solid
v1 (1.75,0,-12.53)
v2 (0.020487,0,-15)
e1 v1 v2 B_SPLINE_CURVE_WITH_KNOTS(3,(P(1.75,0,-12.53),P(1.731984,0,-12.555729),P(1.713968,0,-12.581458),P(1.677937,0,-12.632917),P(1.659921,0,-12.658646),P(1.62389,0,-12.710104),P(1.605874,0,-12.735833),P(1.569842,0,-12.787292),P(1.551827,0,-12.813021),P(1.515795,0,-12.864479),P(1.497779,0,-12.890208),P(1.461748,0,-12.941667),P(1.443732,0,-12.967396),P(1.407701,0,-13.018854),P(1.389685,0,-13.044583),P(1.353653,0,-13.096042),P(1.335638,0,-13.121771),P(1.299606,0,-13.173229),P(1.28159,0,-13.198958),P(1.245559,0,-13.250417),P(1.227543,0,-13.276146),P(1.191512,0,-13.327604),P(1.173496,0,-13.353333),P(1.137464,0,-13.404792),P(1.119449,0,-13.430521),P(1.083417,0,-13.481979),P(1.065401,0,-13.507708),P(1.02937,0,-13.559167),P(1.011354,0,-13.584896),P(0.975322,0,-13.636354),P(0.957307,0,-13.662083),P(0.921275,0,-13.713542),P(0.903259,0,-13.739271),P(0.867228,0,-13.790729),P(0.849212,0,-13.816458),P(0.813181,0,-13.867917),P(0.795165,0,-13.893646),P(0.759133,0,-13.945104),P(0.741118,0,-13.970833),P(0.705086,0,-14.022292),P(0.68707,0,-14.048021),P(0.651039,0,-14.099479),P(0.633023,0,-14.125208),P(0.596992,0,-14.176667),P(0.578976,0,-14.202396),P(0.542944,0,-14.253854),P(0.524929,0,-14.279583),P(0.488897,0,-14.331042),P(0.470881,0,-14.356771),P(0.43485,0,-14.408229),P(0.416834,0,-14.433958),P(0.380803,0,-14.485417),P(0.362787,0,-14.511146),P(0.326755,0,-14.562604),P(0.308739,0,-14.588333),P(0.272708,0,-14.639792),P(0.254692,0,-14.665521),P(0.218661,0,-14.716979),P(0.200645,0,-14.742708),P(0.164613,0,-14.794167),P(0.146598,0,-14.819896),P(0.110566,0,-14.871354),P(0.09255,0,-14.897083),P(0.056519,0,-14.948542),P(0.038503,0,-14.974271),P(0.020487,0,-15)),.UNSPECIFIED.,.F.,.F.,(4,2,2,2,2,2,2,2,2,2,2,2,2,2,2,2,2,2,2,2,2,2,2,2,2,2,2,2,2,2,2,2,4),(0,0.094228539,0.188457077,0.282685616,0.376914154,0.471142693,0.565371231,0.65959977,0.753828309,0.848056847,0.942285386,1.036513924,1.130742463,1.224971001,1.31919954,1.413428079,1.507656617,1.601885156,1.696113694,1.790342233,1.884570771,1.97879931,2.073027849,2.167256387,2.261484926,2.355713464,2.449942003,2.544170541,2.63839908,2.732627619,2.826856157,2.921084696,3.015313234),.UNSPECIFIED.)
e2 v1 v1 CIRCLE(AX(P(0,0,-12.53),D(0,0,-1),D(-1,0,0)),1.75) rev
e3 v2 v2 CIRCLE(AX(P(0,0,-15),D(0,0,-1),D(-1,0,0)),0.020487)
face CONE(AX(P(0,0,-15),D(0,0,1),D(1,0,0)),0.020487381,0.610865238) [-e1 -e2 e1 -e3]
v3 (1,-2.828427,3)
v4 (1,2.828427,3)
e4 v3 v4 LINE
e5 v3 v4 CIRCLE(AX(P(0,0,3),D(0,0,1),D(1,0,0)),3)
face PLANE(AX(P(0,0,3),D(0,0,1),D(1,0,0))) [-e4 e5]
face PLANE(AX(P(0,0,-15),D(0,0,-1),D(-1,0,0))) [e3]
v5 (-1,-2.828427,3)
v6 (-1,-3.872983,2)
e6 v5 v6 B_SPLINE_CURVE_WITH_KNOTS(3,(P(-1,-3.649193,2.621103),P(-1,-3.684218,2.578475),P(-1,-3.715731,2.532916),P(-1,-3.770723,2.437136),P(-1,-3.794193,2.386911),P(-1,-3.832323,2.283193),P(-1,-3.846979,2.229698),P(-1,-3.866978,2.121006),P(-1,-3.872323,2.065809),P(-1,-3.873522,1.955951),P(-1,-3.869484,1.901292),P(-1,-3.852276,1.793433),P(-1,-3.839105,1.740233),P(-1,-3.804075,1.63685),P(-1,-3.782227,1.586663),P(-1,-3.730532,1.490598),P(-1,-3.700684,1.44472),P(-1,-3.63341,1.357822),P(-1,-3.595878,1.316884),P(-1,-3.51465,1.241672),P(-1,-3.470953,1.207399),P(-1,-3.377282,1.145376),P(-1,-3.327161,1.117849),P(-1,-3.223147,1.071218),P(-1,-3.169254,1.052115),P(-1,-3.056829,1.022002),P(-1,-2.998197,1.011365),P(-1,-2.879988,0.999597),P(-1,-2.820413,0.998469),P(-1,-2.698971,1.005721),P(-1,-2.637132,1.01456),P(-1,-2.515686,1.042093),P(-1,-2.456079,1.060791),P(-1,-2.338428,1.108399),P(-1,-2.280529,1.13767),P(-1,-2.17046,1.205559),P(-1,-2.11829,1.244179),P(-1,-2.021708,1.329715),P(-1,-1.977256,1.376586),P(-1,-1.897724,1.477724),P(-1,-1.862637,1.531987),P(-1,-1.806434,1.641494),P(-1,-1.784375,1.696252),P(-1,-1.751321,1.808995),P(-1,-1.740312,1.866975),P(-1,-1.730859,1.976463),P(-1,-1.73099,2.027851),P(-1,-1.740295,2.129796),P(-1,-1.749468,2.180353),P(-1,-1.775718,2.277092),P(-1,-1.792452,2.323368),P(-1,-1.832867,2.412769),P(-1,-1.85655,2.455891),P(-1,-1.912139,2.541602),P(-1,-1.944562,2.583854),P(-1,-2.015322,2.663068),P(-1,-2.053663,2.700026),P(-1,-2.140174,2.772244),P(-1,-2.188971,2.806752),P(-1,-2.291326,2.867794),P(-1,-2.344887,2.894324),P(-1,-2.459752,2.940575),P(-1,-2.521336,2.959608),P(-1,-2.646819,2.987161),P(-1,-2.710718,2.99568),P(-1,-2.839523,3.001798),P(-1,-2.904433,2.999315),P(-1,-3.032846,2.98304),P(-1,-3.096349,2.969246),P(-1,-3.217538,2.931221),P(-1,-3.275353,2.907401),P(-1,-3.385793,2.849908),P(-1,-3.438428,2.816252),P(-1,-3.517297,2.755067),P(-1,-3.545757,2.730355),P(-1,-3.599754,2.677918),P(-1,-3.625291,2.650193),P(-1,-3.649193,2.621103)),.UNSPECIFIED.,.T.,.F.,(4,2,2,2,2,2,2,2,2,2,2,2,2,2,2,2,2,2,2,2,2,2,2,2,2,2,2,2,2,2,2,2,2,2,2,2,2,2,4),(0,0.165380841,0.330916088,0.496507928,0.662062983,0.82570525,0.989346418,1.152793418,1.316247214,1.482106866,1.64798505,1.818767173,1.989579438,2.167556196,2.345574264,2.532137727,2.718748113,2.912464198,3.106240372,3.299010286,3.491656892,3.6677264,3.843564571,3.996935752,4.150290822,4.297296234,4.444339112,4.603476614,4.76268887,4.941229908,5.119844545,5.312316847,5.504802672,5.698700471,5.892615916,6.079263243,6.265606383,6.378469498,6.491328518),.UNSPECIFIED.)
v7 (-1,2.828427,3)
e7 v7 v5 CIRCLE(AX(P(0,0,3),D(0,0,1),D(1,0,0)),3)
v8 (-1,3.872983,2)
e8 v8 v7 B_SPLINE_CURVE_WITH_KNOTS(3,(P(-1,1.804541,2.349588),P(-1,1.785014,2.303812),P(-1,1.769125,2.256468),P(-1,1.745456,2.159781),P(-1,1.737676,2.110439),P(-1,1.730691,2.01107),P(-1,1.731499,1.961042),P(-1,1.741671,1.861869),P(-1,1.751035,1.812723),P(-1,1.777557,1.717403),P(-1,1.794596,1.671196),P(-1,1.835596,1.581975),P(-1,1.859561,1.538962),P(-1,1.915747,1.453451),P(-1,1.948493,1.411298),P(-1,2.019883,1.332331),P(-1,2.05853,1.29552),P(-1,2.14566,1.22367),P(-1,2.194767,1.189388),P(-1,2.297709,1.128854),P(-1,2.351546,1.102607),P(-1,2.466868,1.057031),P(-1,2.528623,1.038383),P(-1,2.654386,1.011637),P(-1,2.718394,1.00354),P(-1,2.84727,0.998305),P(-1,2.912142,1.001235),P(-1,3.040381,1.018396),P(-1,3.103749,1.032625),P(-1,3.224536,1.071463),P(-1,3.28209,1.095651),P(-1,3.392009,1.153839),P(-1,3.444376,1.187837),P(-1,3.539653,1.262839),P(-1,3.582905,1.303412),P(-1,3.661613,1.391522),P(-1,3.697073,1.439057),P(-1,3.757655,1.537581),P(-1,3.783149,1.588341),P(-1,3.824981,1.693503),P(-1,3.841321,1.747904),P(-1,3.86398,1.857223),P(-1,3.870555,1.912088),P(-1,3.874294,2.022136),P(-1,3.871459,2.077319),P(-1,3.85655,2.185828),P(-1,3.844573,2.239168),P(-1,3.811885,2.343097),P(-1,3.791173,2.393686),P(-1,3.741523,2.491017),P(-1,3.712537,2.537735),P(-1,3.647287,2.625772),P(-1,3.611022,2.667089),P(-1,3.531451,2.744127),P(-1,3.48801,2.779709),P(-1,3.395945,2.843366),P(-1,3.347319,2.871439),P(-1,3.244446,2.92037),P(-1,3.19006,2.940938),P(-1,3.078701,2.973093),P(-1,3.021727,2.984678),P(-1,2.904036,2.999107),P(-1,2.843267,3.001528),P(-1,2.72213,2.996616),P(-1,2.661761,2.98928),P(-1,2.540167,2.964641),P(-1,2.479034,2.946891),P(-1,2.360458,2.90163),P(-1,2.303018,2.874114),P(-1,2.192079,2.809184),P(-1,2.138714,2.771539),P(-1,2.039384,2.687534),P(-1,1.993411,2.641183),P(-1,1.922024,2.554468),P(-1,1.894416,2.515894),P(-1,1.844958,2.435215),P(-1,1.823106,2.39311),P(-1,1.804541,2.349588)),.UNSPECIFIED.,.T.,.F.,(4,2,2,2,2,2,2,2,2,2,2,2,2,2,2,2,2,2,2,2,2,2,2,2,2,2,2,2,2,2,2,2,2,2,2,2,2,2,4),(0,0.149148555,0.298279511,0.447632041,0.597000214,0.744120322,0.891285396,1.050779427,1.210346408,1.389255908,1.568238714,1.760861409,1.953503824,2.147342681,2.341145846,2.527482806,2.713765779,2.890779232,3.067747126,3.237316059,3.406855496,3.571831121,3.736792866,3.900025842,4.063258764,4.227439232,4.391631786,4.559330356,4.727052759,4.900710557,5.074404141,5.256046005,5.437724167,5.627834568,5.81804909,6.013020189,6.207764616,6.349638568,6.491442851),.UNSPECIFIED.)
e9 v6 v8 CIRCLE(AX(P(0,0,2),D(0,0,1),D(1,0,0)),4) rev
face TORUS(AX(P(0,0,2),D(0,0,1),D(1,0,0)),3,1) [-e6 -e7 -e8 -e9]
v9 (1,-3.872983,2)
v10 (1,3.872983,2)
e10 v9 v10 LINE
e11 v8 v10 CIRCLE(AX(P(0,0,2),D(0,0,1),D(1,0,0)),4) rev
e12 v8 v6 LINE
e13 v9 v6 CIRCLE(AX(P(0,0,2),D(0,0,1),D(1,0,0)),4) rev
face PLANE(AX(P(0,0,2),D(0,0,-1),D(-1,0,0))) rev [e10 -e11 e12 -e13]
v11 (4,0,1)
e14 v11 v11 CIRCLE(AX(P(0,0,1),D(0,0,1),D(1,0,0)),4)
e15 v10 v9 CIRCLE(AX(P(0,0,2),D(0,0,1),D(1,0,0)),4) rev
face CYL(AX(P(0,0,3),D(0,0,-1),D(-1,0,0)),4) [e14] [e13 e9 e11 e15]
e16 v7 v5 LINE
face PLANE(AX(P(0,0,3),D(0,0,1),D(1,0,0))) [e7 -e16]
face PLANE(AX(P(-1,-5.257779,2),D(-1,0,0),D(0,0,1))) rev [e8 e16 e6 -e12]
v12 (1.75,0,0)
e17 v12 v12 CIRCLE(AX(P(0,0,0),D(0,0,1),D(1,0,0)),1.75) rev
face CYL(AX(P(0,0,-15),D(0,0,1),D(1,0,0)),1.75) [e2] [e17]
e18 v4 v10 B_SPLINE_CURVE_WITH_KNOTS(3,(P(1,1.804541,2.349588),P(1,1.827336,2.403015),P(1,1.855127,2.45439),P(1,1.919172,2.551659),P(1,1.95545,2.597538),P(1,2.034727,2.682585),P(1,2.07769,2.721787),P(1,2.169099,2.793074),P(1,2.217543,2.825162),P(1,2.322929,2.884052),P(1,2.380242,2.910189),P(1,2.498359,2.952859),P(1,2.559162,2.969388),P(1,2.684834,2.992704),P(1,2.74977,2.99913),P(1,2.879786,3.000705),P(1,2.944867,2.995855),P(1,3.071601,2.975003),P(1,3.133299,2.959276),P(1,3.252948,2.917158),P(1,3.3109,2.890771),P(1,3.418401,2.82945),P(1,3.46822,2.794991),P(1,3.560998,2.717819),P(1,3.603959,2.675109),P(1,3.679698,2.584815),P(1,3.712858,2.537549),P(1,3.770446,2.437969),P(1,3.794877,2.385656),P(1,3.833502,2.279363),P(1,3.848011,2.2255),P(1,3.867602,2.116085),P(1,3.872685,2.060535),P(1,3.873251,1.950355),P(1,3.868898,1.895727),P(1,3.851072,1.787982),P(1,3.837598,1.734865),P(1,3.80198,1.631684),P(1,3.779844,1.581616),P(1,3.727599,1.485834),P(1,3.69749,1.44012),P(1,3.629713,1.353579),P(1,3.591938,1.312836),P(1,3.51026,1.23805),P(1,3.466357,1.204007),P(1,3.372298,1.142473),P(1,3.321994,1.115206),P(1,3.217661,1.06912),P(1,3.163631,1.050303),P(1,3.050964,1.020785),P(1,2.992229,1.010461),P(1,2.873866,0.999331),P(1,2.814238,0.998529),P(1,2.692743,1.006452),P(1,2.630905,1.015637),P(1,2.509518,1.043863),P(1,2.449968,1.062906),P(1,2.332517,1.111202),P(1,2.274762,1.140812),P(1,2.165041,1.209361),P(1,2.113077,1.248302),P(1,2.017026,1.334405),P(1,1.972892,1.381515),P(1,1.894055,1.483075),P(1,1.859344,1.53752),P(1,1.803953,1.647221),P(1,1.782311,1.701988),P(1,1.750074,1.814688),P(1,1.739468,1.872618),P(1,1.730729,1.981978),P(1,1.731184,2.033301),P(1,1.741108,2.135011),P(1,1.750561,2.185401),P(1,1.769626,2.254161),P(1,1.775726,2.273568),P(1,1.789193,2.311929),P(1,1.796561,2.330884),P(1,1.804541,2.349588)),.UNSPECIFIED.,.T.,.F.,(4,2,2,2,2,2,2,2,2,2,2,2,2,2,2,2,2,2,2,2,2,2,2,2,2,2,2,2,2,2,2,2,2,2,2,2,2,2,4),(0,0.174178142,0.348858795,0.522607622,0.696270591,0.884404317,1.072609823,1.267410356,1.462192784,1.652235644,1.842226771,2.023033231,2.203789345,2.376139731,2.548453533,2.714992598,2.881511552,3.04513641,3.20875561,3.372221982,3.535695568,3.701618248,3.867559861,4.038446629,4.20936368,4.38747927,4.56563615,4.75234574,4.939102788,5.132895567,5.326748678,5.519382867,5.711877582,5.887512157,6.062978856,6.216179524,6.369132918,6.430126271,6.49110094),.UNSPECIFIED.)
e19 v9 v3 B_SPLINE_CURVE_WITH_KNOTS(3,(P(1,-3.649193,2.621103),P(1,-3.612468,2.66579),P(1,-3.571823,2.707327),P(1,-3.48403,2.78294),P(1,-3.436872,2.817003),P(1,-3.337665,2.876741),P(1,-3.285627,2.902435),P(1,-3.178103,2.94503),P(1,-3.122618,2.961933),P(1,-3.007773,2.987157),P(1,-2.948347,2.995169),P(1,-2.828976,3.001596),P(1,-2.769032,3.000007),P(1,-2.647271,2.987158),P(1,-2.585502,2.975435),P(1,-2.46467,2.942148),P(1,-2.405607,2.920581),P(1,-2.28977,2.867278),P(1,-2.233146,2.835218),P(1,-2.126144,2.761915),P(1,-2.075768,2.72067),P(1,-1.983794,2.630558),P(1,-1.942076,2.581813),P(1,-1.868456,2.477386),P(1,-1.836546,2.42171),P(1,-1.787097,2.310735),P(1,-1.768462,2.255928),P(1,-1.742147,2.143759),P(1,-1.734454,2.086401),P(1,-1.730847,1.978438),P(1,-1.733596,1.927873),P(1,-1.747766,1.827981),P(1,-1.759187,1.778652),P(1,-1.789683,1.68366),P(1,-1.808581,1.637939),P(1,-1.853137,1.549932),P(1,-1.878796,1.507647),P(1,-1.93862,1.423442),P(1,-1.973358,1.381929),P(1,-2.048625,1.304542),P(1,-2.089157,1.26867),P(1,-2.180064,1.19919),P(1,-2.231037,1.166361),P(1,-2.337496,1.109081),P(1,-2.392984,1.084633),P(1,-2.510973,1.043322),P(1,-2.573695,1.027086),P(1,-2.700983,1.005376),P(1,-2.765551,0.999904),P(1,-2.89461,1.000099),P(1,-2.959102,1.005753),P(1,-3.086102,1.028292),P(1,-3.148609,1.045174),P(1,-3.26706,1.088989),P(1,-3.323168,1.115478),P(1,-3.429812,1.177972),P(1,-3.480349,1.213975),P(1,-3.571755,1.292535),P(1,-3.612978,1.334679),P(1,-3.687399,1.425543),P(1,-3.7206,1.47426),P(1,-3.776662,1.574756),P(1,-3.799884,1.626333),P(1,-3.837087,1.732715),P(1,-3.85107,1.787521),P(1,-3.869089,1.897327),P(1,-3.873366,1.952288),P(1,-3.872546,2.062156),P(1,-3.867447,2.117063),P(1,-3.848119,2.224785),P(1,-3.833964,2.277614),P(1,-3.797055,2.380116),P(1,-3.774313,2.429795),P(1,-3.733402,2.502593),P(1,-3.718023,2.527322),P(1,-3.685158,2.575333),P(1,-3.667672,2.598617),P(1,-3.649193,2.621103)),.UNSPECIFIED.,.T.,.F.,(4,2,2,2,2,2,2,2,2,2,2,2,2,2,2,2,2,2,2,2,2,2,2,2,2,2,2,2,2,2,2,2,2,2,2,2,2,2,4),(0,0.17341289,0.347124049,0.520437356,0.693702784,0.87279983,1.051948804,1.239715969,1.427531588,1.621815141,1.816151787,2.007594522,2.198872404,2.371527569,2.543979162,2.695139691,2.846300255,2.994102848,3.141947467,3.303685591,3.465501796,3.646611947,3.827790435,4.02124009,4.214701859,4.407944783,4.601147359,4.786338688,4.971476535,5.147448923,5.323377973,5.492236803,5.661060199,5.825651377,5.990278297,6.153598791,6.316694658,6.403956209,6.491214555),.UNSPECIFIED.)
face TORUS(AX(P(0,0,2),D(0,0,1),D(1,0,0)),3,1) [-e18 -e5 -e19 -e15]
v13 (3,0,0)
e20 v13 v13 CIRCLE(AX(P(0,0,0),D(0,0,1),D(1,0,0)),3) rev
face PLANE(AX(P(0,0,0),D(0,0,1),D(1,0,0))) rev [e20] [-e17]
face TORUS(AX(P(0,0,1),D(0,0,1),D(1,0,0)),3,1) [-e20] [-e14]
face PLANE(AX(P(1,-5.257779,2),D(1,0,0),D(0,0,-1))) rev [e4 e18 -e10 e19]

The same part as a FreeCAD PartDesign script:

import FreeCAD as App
import Part
import Sketcher
Q = App.Units.Quantity


def edges_at(feature, points):
    """Names of the edges that pass closest to the given points."""
    edges = feature.Shape.Edges
    near = lambda p: min(range(len(edges)), key=lambda i: edges[i].distToShape(Part.Vertex(*p))[0])
    return sorted({f"Edge{near(p) + 1}" for p in points})

doc = App.newDocument("Part")
body = doc.addObject("PartDesign::Body", "Body")

# Sketch on XY plane
sketch1 = body.newObject("Sketcher::SketchObject", "Sketch")
sketch1.AttachmentSupport = (doc.getObject("XY_Plane"), [""])
sketch1.MapMode = "FlatFace"
sketch1.addGeometry(Part.Circle(App.Vector(0, 0, 0), App.Vector(0, 0, 1), 4), False)
sketch1.addConstraint(Sketcher.Constraint("Coincident", 0, 3, -1, 1))
sketch1.addConstraint(Sketcher.Constraint("Diameter", 0, Q("8 mm")))
pad1 = body.newObject("PartDesign::Pad", "Pad")
pad1.Profile = sketch1
pad1.Length = 3
doc.recompute()

fillet = body.newObject("PartDesign::Fillet", "Fillet")
fillet.Base = (pad1, edges_at(pad1, [(-4, 0, 0), (-4, 0, 3)]))
fillet.Radius = 1

# Sketch on XY plane
sketch2 = body.newObject("Sketcher::SketchObject", "Sketch001")
sketch2.AttachmentSupport = (doc.getObject("XY_Plane"), [""])
sketch2.MapMode = "FlatFace"
sketch2.AttachmentOffset = App.Placement(App.Vector(0, 0, 3), App.Rotation())
sketch2.addGeometry(Part.LineSegment(App.Vector(-1, 5.257779, 0), App.Vector(-1, -5.257779, 0)), False)
sketch2.addGeometry(Part.LineSegment(App.Vector(-1, -5.257779, 0), App.Vector(1, -5.257779, 0)), False)
sketch2.addGeometry(Part.LineSegment(App.Vector(1, -5.257779, 0), App.Vector(1, 5.257779, 0)), False)
sketch2.addGeometry(Part.LineSegment(App.Vector(1, 5.257779, 0), App.Vector(-1, 5.257779, 0)), False)
sketch2.addConstraint(Sketcher.Constraint("Coincident", 0, 2, 1, 1))
sketch2.addConstraint(Sketcher.Constraint("Coincident", 1, 2, 2, 1))
sketch2.addConstraint(Sketcher.Constraint("Coincident", 2, 2, 3, 1))
sketch2.addConstraint(Sketcher.Constraint("Coincident", 3, 2, 0, 1))
sketch2.addConstraint(Sketcher.Constraint("Vertical", 0))
sketch2.addConstraint(Sketcher.Constraint("Horizontal", 1))
sketch2.addConstraint(Sketcher.Constraint("Vertical", 2))
sketch2.addConstraint(Sketcher.Constraint("Horizontal", 3))
sketch2.addConstraint(Sketcher.Constraint("Symmetric", 0, 2, 2, 2, -1, 1))
sketch2.addConstraint(Sketcher.Constraint("DistanceX", 1, 1, 1, 2, Q("2 mm")))
sketch2.addConstraint(Sketcher.Constraint("DistanceY", 0, 2, 0, 1, Q("10.515557 mm")))
pocket1 = body.newObject("PartDesign::Pocket", "Pocket")
pocket1.Profile = sketch2
pocket1.Length = 1

# Sketch on XY plane
sketch3 = body.newObject("Sketcher::SketchObject", "Sketch002")
sketch3.AttachmentSupport = (doc.getObject("XY_Plane"), [""])
sketch3.MapMode = "FlatFace"
sketch3.addGeometry(Part.Circle(App.Vector(0, 0, 0), App.Vector(0, 0, 1), 1.75), False)
sketch3.addConstraint(Sketcher.Constraint("Coincident", 0, 3, -1, 1))
sketch3.addConstraint(Sketcher.Constraint("Diameter", 0, Q("3.5 mm")))
pad2 = body.newObject("PartDesign::Pad", "Pad001")
pad2.Profile = sketch3
pad2.Length = 15
pad2.Reversed = True
doc.recompute()

chamfer = body.newObject("PartDesign::Chamfer", "Chamfer")
chamfer.Base = (pad2, edges_at(pad2, [(-1.75, 0, -15)]))
chamfer.ChamferType = "Two distances"
chamfer.Size = 2.47
chamfer.Size2 = 1.729513

doc.recompute()
